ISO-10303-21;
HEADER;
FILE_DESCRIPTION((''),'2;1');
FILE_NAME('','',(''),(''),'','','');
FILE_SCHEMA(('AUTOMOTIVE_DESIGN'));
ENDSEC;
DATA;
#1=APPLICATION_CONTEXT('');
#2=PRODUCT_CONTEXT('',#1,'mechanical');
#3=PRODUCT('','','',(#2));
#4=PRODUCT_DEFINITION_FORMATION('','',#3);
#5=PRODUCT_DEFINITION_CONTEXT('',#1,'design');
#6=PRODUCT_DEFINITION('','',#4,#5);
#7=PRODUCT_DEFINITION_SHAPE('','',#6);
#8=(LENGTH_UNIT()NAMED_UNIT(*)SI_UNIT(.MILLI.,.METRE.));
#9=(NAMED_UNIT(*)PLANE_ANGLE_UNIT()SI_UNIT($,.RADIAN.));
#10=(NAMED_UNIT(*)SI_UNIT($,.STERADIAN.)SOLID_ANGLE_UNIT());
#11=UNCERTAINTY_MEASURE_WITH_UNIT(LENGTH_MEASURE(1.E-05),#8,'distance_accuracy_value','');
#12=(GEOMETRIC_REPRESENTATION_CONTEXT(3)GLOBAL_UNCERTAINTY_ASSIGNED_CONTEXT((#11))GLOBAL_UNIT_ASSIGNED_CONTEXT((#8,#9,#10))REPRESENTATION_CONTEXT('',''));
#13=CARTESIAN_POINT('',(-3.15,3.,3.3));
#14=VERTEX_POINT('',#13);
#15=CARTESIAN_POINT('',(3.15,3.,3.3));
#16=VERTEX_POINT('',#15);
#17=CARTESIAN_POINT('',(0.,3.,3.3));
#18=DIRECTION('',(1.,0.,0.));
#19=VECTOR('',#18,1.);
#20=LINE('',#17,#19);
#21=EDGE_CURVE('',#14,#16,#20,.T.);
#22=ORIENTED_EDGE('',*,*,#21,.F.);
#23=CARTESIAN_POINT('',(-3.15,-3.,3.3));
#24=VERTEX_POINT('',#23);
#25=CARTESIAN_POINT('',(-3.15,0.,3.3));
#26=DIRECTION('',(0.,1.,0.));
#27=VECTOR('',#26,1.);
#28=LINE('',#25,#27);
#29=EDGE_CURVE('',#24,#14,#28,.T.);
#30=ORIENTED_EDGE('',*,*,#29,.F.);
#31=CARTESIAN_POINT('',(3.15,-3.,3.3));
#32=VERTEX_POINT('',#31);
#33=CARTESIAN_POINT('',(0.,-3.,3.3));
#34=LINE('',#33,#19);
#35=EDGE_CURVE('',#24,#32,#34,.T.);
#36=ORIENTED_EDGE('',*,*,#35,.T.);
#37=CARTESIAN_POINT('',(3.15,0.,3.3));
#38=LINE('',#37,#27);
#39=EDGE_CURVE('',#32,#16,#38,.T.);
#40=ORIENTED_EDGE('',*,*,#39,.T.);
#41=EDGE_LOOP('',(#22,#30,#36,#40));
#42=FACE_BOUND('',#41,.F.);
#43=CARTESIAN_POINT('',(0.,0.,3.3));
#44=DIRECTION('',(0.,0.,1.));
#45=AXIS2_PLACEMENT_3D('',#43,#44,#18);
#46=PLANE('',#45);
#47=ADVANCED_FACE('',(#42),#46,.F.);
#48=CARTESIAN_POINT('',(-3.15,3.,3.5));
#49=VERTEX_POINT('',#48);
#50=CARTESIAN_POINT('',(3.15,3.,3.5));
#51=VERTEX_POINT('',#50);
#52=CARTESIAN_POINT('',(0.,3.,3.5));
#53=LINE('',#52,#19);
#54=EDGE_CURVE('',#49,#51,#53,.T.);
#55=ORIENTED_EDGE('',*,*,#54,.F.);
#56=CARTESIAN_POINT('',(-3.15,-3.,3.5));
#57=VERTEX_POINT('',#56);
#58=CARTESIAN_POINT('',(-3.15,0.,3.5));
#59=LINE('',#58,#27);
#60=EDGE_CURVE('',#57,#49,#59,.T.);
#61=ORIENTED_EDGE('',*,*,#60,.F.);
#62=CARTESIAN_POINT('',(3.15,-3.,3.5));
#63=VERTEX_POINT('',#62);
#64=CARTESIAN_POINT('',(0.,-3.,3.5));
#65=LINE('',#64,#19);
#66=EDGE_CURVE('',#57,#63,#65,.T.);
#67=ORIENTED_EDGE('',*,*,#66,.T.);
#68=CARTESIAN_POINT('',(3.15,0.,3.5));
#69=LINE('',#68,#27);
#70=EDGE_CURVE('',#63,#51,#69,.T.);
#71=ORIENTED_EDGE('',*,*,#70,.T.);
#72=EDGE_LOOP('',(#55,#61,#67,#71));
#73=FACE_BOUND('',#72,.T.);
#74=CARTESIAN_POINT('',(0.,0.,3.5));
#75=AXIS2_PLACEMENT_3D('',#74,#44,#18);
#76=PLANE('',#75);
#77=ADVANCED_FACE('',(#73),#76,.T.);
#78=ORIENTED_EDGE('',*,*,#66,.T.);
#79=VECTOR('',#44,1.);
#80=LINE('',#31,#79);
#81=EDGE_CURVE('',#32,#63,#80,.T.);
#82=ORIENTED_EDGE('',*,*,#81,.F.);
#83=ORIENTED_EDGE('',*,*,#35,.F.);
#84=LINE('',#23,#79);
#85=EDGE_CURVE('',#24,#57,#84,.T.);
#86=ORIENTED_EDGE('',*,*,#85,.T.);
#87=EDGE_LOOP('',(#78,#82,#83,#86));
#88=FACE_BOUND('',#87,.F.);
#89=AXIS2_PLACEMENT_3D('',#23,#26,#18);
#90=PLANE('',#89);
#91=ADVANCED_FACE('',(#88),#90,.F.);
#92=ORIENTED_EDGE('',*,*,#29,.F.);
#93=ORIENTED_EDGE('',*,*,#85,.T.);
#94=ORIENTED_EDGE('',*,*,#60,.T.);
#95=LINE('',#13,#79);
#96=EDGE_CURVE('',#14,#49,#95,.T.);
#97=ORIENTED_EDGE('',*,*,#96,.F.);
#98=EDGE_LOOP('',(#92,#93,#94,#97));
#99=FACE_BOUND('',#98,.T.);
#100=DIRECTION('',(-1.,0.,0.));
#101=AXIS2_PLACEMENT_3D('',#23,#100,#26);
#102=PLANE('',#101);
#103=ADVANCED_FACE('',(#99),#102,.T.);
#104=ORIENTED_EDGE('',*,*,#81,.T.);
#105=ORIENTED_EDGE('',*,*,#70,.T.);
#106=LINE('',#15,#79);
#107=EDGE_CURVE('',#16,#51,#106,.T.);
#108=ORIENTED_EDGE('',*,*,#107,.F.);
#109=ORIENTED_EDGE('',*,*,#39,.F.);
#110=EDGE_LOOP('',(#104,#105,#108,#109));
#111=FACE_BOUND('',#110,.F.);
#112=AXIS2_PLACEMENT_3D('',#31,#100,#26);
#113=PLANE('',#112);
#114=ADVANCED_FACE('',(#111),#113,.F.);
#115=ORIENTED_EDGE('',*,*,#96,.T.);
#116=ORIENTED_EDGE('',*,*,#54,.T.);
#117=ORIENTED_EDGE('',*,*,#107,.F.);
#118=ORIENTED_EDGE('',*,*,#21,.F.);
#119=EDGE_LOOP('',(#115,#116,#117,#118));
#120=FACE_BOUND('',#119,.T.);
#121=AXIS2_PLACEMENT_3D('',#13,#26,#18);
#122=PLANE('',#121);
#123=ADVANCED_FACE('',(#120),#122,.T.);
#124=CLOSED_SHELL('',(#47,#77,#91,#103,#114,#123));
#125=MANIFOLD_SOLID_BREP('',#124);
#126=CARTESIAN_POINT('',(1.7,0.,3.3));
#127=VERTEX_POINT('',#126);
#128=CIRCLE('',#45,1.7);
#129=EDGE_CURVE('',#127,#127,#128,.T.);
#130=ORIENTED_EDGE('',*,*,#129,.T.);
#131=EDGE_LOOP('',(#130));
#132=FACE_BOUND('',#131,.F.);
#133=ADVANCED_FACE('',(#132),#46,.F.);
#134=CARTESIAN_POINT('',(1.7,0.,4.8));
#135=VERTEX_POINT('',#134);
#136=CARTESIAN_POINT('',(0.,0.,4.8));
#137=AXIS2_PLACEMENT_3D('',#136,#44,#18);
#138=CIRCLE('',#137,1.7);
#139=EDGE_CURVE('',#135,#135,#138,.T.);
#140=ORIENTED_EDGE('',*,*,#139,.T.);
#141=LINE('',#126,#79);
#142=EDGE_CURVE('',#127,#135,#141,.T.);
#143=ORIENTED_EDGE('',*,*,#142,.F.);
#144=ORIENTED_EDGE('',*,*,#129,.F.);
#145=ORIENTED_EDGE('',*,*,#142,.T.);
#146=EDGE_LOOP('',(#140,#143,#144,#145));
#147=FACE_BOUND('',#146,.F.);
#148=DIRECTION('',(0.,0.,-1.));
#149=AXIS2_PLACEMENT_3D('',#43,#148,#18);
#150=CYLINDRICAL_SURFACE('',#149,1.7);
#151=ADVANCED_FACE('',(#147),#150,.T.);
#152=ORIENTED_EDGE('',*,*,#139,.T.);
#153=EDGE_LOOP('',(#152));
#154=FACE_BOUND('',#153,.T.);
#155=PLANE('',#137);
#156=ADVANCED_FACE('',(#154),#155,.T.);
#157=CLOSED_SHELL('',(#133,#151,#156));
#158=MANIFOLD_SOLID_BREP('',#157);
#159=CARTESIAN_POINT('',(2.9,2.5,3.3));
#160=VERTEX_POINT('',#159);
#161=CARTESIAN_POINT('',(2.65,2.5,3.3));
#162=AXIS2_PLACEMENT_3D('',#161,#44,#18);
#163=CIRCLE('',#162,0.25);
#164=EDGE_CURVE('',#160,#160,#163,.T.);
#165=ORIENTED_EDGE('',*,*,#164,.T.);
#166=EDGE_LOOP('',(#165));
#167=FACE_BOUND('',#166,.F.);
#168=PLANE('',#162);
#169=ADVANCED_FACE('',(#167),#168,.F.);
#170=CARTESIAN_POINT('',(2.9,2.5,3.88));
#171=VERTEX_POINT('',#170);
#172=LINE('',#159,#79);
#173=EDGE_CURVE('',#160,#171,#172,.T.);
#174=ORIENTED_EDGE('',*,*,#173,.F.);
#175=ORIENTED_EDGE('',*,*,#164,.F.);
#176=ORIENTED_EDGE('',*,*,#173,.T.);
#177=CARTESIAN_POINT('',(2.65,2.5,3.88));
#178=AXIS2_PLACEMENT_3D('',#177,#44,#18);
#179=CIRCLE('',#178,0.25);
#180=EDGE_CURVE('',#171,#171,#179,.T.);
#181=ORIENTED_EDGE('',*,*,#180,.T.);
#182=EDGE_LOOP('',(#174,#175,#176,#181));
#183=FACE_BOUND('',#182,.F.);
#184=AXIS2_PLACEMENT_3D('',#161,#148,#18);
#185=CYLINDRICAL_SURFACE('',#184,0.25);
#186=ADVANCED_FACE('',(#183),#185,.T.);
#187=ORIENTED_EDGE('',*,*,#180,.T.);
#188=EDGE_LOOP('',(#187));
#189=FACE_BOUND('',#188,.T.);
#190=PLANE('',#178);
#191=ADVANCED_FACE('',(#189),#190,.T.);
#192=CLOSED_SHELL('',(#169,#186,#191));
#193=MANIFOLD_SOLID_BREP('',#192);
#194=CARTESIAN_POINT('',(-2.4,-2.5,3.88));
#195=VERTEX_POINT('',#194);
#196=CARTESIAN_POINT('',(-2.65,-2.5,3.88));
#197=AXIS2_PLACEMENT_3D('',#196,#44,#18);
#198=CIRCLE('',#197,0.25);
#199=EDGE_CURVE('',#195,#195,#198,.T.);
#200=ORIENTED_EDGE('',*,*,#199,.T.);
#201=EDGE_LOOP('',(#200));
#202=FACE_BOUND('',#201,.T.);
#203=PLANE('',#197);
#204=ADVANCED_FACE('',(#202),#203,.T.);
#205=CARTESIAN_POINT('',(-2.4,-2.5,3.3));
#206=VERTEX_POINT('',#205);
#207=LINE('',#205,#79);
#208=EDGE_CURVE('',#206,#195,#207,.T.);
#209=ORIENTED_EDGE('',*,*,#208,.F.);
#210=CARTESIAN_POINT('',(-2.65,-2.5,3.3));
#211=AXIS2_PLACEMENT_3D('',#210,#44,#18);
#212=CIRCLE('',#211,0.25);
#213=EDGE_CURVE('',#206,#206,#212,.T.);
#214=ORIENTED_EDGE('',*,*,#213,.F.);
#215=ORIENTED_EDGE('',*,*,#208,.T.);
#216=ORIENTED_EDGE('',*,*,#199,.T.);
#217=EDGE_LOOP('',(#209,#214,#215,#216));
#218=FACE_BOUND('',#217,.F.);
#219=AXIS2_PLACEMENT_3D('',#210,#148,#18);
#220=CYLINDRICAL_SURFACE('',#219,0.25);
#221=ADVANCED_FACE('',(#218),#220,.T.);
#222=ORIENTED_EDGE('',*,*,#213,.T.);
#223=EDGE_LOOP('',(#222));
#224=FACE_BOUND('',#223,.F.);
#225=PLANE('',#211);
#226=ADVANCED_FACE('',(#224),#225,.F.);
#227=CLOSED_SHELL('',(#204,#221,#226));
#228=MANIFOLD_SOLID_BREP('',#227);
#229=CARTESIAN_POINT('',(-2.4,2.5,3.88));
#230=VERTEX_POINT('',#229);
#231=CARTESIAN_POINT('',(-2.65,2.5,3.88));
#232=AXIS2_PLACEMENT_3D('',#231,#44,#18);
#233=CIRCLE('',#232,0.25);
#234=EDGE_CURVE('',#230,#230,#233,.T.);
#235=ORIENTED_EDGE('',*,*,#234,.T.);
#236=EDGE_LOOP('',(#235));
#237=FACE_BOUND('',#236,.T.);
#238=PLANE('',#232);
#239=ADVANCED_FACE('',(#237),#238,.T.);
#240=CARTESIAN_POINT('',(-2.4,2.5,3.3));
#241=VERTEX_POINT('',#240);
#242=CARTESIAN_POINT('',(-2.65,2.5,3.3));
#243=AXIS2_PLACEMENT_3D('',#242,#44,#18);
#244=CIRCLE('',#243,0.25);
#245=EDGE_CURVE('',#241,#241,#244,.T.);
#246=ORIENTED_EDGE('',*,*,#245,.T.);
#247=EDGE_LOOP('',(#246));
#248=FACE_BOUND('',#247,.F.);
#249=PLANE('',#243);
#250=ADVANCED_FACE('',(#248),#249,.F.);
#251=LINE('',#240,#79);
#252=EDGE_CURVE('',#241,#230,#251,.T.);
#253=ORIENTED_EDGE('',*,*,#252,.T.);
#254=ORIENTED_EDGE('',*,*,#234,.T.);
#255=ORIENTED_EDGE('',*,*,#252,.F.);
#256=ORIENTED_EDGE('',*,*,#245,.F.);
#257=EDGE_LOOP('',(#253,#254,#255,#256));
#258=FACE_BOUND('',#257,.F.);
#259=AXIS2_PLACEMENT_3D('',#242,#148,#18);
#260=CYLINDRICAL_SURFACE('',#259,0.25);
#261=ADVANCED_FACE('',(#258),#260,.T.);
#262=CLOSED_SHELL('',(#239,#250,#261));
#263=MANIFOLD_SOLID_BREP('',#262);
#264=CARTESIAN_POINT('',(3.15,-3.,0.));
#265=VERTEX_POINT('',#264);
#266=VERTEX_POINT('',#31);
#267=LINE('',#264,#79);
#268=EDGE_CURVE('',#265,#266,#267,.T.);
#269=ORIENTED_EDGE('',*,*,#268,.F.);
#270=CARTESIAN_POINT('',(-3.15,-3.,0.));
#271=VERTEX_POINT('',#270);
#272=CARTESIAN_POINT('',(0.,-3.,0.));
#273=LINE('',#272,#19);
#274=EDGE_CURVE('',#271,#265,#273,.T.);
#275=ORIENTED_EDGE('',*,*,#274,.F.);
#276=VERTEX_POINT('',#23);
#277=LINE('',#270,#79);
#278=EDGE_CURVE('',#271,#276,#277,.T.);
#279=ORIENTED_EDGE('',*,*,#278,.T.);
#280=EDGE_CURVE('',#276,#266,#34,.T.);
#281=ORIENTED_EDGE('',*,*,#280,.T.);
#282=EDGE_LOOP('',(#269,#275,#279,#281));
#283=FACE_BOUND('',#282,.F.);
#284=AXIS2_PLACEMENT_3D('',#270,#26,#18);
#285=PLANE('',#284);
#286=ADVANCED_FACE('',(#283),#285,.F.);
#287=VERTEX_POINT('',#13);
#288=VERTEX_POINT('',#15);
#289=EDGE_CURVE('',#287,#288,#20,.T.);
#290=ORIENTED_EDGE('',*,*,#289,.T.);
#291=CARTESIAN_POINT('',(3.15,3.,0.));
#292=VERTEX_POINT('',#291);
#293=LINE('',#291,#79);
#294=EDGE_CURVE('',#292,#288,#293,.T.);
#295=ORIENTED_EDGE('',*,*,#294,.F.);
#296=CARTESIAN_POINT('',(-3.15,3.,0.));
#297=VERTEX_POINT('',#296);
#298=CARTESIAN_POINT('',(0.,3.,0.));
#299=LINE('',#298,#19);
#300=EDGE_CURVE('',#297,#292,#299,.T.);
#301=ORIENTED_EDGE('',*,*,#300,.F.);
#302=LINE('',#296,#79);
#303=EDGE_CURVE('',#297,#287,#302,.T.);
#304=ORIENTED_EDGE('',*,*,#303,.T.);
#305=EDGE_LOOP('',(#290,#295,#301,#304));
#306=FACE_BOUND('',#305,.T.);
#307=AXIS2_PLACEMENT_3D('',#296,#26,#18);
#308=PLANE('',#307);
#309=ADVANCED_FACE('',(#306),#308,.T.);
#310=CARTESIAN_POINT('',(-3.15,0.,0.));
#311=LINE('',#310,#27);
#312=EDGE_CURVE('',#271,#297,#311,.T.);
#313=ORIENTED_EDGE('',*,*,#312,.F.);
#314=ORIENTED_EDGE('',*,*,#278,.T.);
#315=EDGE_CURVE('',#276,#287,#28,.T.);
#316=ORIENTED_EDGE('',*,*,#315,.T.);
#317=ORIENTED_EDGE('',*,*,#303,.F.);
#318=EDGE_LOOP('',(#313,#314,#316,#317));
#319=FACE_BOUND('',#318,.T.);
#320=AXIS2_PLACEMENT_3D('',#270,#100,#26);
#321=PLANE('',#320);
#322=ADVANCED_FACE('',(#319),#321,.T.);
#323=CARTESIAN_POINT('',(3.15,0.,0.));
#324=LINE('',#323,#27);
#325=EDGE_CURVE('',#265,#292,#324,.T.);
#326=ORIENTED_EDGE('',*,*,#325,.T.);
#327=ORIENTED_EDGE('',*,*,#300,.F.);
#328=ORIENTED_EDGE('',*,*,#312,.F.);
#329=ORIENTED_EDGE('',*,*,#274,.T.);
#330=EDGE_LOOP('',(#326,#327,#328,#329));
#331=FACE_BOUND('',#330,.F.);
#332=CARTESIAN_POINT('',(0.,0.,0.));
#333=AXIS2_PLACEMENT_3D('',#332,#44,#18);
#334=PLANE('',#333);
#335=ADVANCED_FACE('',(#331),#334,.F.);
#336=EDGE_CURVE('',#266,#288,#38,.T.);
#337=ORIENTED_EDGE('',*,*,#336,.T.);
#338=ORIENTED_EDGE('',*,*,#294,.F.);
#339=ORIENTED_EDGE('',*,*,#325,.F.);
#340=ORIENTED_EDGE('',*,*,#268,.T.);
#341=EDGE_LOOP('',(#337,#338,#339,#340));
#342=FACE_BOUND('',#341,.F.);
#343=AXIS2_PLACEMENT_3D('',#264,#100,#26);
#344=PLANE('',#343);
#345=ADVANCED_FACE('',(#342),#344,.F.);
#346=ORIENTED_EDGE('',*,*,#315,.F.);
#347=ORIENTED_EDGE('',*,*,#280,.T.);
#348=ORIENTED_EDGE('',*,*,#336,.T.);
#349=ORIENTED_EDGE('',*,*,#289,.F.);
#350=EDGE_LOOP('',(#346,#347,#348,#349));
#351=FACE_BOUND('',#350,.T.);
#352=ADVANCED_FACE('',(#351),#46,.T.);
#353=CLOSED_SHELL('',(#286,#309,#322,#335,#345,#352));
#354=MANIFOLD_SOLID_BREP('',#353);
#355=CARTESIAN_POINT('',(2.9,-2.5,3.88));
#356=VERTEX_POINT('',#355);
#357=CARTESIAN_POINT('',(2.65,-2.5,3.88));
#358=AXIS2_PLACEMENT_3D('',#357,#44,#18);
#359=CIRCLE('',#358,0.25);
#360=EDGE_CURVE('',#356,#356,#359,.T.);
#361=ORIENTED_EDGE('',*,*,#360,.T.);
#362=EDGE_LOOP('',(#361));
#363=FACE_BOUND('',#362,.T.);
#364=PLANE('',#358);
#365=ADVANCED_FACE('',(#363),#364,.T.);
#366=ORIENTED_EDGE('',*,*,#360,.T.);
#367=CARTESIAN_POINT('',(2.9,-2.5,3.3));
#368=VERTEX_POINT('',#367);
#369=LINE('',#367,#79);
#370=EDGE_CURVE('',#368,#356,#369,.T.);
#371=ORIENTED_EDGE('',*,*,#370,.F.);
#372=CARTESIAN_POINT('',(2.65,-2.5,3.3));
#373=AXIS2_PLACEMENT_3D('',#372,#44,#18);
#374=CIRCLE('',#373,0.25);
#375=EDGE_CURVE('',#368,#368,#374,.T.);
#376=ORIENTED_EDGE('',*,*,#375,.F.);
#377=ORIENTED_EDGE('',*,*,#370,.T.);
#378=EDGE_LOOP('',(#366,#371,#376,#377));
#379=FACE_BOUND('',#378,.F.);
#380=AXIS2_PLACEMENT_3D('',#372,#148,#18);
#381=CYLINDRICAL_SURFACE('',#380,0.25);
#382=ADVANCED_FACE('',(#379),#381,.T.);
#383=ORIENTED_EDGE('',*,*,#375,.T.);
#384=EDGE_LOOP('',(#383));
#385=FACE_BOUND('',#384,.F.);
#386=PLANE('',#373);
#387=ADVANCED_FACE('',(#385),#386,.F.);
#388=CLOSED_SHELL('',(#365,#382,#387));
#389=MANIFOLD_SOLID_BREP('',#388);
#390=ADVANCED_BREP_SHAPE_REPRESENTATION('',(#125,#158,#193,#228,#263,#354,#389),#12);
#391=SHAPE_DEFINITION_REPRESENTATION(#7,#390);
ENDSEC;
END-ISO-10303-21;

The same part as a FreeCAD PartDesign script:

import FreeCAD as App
import Part
import Sketcher
from FreeCAD import Vector

doc = App.newDocument("Part")
body = doc.addObject("PartDesign::Body", "Body")

# Sketch on XY plane
sketch1 = body.newObject("Sketcher::SketchObject", "Sketch")
sketch1.AttachmentSupport = (doc.getObject("XY_Plane"), [""])
sketch1.MapMode = "FlatFace"
sketch1.addGeometry([
    Part.LineSegment(Vector(-3, 3, 0), Vector(-3, -3, 0)),
    Part.LineSegment(Vector(-3, -3, 0), Vector(3, -3, 0)),
    Part.LineSegment(Vector(3, -3, 0), Vector(3, 3, 0)),
    Part.LineSegment(Vector(3, 3, 0), Vector(-3, 3, 0)),
], False)
sketch1.addConstraint([
    Sketcher.Constraint("Coincident", 0, 2, 1, 1),
    Sketcher.Constraint("Coincident", 1, 2, 2, 1),
    Sketcher.Constraint("Coincident", 2, 2, 3, 1),
    Sketcher.Constraint("Coincident", 3, 2, 0, 1),
    Sketcher.Constraint("Vertical", 0),
    Sketcher.Constraint("Horizontal", 1),
    Sketcher.Constraint("Vertical", 2),
    Sketcher.Constraint("Horizontal", 3),
    Sketcher.Constraint("Symmetric", 0, 2, 2, 2, -1, 1),
    Sketcher.Constraint("DistanceY", 0, 2, 0, 1, 6.0),
    Sketcher.Constraint("DistanceX", 1, 1, 1, 2, 6.3),
])
pad1 = body.newObject("PartDesign::Pad", "Pad")
pad1.Profile = sketch1
pad1.Length = 3.3
body2 = doc.addObject("PartDesign::Body", "Body001")

# Sketch on XY plane
sketch2 = body2.newObject("Sketcher::SketchObject", "Sketch001")
sketch2.AttachmentSupport = (doc.getObject("XY_Plane001"), [""])
sketch2.MapMode = "FlatFace"
sketch2.AttachmentOffset = App.Placement(Vector(0, 0, 3.3), App.Rotation())
sketch2.addGeometry([
    Part.LineSegment(Vector(-3, 3, 0), Vector(-3, -3, 0)),
    Part.LineSegment(Vector(-3, -3, 0), Vector(3, -3, 0)),
    Part.LineSegment(Vector(3, -3, 0), Vector(3, 3, 0)),
    Part.LineSegment(Vector(3, 3, 0), Vector(-3, 3, 0)),
], False)
sketch2.addConstraint([
    Sketcher.Constraint("Coincident", 0, 2, 1, 1),
    Sketcher.Constraint("Coincident", 1, 2, 2, 1),
    Sketcher.Constraint("Coincident", 2, 2, 3, 1),
    Sketcher.Constraint("Coincident", 3, 2, 0, 1),
    Sketcher.Constraint("Vertical", 0),
    Sketcher.Constraint("Horizontal", 1),
    Sketcher.Constraint("Vertical", 2),
    Sketcher.Constraint("Horizontal", 3),
    Sketcher.Constraint("Symmetric", 0, 2, 2, 2, -1, 1),
    Sketcher.Constraint("DistanceY", 0, 2, 0, 1, 6.0),
    Sketcher.Constraint("DistanceX", 1, 1, 1, 2, 6.3),
])
pad2 = body2.newObject("PartDesign::Pad", "Pad001")
pad2.Profile = sketch2
pad2.Length = 0.2
body3 = doc.addObject("PartDesign::Body", "Body002")

# Sketch on XY plane
sketch3 = body3.newObject("Sketcher::SketchObject", "Sketch002")
sketch3.AttachmentSupport = (doc.getObject("XY_Plane002"), [""])
sketch3.MapMode = "FlatFace"
sketch3.AttachmentOffset = App.Placement(Vector(0, 0, 3.3), App.Rotation())
sketch3.addGeometry(Part.Circle(Vector(0, 0, 0), Vector(0, 0, 1), 1.7), False)
sketch3.addConstraint([
    Sketcher.Constraint("Coincident", 0, 3, -1, 1),
    Sketcher.Constraint("Diameter", 0, 3.4),
])
pad3 = body3.newObject("PartDesign::Pad", "Pad002")
pad3.Profile = sketch3
pad3.Length = 1.5
body4 = doc.addObject("PartDesign::Body", "Body003")
body4.AllowCompound = True

# Sketch on XY plane
sketch4 = body4.newObject("Sketcher::SketchObject", "Sketch003")
sketch4.AttachmentSupport = (doc.getObject("XY_Plane003"), [""])
sketch4.MapMode = "FlatFace"
sketch4.AttachmentOffset = App.Placement(Vector(0, 0, 3.3), App.Rotation())
sketch4.addGeometry([
    Part.Circle(Vector(-2.65, 2.5, 0), Vector(0, 0, 1), 0.25),
    Part.Circle(Vector(2.65, 2.5, 0), Vector(0, 0, 1), 0.25),
    Part.Circle(Vector(2.65, -2.5, 0), Vector(0, 0, 1), 0.25),
    Part.Circle(Vector(-2.65, -2.5, 0), Vector(0, 0, 1), 0.25),
], False)
sketch4.addConstraint([
    Sketcher.Constraint("Equal", 0, 1),
    Sketcher.Constraint("Equal", 1, 2),
    Sketcher.Constraint("Equal", 2, 3),
    Sketcher.Constraint("Symmetric", 0, 3, 2, 3, -1, 1),
    Sketcher.Constraint("Symmetric", 1, 3, 3, 3, -1, 1),
    Sketcher.Constraint("Symmetric", 0, 3, 1, 3, -2),
    Sketcher.Constraint("Diameter", 0, 0.5),
    Sketcher.Constraint("DistanceY", 2, 3, 1, 3, 5.0),
    Sketcher.Constraint("DistanceX", 0, 3, 1, 3, 5.3),
])
pad4 = body4.newObject("PartDesign::Pad", "Pad003")
pad4.Profile = sketch4
pad4.Length = 0.58

doc.recompute()
